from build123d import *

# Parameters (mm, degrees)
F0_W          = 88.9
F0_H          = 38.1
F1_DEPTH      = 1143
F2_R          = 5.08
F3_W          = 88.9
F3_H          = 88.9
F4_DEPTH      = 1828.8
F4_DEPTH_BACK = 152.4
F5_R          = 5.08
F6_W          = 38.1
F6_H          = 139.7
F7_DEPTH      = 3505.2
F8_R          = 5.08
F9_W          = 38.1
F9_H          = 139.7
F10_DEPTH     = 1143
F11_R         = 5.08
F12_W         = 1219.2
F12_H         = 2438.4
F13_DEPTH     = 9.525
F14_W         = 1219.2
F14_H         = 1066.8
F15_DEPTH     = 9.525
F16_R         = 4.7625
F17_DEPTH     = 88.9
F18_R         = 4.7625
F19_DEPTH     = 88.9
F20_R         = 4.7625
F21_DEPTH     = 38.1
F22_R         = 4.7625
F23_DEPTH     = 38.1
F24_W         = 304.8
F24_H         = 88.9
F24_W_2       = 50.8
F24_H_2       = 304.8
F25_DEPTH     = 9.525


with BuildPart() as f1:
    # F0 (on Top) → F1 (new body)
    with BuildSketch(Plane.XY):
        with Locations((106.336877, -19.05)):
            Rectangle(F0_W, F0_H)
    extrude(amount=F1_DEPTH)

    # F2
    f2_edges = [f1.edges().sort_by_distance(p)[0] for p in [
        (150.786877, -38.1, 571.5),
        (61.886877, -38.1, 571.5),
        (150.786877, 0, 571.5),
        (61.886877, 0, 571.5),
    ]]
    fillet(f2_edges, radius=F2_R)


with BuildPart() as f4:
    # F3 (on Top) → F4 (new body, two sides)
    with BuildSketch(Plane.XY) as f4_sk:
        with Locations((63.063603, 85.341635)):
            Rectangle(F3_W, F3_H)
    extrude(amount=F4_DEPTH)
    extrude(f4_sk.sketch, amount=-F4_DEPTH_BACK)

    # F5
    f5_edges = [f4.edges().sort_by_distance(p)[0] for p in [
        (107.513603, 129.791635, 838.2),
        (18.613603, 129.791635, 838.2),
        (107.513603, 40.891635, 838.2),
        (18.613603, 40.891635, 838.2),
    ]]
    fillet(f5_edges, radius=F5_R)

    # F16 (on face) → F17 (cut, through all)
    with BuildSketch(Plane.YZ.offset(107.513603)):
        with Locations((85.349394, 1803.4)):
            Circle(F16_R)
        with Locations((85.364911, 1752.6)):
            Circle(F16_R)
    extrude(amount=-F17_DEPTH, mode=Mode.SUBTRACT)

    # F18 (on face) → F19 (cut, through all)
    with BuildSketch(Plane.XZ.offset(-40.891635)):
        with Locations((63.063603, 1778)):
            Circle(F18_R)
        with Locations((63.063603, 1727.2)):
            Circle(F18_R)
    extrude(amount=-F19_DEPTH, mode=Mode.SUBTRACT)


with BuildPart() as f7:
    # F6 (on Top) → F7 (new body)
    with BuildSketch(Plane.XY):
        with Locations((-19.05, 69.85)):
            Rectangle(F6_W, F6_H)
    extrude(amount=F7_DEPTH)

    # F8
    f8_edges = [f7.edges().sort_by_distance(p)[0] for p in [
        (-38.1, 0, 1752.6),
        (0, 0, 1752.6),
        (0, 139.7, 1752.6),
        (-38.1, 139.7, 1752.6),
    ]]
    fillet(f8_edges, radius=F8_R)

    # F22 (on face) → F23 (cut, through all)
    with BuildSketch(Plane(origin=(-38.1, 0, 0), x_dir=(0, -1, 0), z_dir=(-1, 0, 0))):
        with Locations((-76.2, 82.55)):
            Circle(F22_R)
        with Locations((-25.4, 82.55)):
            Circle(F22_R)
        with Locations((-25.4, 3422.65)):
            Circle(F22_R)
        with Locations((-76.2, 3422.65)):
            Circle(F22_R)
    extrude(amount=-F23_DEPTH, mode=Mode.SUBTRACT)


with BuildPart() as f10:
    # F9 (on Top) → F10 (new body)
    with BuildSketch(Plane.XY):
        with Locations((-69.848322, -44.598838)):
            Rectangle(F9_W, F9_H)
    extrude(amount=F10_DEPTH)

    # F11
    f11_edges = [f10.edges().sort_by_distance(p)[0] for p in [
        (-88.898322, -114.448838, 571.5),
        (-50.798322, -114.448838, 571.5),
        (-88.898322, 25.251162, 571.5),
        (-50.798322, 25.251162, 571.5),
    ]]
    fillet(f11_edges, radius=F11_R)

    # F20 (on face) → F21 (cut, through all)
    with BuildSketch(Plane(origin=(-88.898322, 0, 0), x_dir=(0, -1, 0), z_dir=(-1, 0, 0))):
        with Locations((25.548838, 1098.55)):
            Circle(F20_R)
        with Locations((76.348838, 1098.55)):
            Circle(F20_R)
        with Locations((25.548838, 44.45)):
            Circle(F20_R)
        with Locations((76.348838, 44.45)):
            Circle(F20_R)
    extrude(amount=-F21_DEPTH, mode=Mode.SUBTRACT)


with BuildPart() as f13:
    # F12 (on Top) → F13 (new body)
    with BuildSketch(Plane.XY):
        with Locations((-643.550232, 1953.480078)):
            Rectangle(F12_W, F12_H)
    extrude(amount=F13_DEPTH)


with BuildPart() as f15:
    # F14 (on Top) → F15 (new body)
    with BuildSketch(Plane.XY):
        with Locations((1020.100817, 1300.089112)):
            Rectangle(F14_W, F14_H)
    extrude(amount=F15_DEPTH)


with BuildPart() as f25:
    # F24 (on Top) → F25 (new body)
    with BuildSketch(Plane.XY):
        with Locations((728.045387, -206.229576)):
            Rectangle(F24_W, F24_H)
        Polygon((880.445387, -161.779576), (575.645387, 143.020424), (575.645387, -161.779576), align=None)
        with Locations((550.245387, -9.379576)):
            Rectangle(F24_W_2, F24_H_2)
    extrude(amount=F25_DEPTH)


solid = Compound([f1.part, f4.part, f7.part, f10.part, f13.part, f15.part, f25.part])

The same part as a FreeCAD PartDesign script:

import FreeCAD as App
import Part
import Sketcher
Q = App.Units.Quantity


def edges_at(feature, points):
    """Names of the edges that pass closest to the given points."""
    edges = feature.Shape.Edges
    near = lambda p: min(range(len(edges)), key=lambda i: edges[i].distToShape(Part.Vertex(*p))[0])
    return sorted({f"Edge{near(p) + 1}" for p in points})


def add_polygon(sketch, points):
    """Adds a closed chain of lines whose ends are joined by coincident constraints."""
    first, n = sketch.GeometryCount, len(points)
    for a, b in zip(points, points[1:] + points[:1]):
        sketch.addGeometry(Part.LineSegment(App.Vector(*a, 0), App.Vector(*b, 0)), False)
    for i in range(n):
        sketch.addConstraint(Sketcher.Constraint("Coincident", first + i, 2, first + (i + 1) % n, 1))

doc = App.newDocument("Part")
body = doc.addObject("PartDesign::Body", "Body")

sketch1 = body.newObject("Sketcher::SketchObject", "Sketch")
sketch1.AttachmentSupport = (doc.getObject("XY_Plane"), [""])
sketch1.MapMode = "FlatFace"
add_polygon(sketch1, [(61.886877, 0), (61.886877, -38.1), (150.786877, -38.1), (150.786877, 0)])
sketch1.addConstraint(Sketcher.Constraint("Vertical", 0))
sketch1.addConstraint(Sketcher.Constraint("Horizontal", 1))
sketch1.addConstraint(Sketcher.Constraint("Vertical", 2))
sketch1.addConstraint(Sketcher.Constraint("Horizontal", 3))
sketch1.addConstraint(Sketcher.Constraint("PointOnObject", 2, 2, -1))
sketch1.addConstraint(Sketcher.Constraint("DistanceX", 1, 1, 1, 2, Q("3.5 in")))
sketch1.addConstraint(Sketcher.Constraint("DistanceY", 0, 2, 0, 1, Q("1.5 in")))
sketch1.addConstraint(Sketcher.Constraint("DistanceX", -1, 1, 0, 2, Q("61.886877 mm")))
pad1 = body.newObject("PartDesign::Pad", "Pad")
pad1.Profile = sketch1
pad1.Length = Q("45 in")
doc.recompute()

fillet = body.newObject("PartDesign::Fillet", "Fillet")
fillet.Base = (pad1, edges_at(pad1, [
    (150.787, -38.1, 571.5),
    (61.887, -38.1, 571.5),
    (150.787, 0, 571.5),
    (61.887, 0, 571.5),
]))
fillet.Radius = Q("0.2 in")
body2 = doc.addObject("PartDesign::Body", "Body001")

sketch2 = body2.newObject("Sketcher::SketchObject", "Sketch001")
sketch2.AttachmentSupport = (doc.getObject("XY_Plane001"), [""])
sketch2.MapMode = "FlatFace"
add_polygon(sketch2, [(18.613603, 129.791635), (18.613603, 40.891635), (107.513603, 40.891635), (107.513603, 129.791635)])
sketch2.addConstraint(Sketcher.Constraint("Vertical", 0))
sketch2.addConstraint(Sketcher.Constraint("Horizontal", 1))
sketch2.addConstraint(Sketcher.Constraint("Vertical", 2))
sketch2.addConstraint(Sketcher.Constraint("Horizontal", 3))
sketch2.addConstraint(Sketcher.Constraint("Equal", 3, 0))
sketch2.addConstraint(Sketcher.Constraint("DistanceX", 1, 1, 1, 2, Q("3.5 in")))
sketch2.addConstraint(Sketcher.Constraint("DistanceX", -1, 1, 0, 2, Q("18.613603 mm")))
sketch2.addConstraint(Sketcher.Constraint("DistanceY", -1, 1, 0, 2, Q("40.891635 mm")))
pad2 = body2.newObject("PartDesign::Pad", "Pad001")
pad2.Profile = sketch2
pad2.Type = "TwoLengths"
pad2.Length = Q("72 in")
pad2.Length2 = Q("6 in")
doc.recompute()

fillet2 = body2.newObject("PartDesign::Fillet", "Fillet001")
fillet2.Base = (pad2, edges_at(pad2, [
    (107.514, 129.792, 838.2),
    (18.614, 129.792, 838.2),
    (107.514, 40.892, 838.2),
    (18.614, 40.892, 838.2),
]))
fillet2.Radius = Q("0.2 in")

sketch3 = body2.newObject("Sketcher::SketchObject", "Sketch002")
sketch3.AttachmentSupport = (doc.getObject("YZ_Plane001"), [""])
sketch3.MapMode = "FlatFace"
sketch3.AttachmentOffset = App.Placement(App.Vector(0, 0, 107.513603), App.Rotation())
sketch3.addGeometry(Part.Circle(App.Vector(85.349394, 1803.4, 0), App.Vector(0, 0, 1), 4.7625), False)
sketch3.addGeometry(Part.Circle(App.Vector(85.364911, 1752.6, 0), App.Vector(0, 0, 1), 4.7625), False)
sketch3.addConstraint(Sketcher.Constraint("Equal", 0, 1))
sketch3.addConstraint(Sketcher.Constraint("Diameter", 0, Q("0.375 in")))
sketch3.addConstraint(Sketcher.Constraint("DistanceY", -1, 1, 0, 3, Q("71 in")))
sketch3.addConstraint(Sketcher.Constraint("DistanceY", -1, 1, 1, 3, Q("69 in")))
sketch3.addConstraint(Sketcher.Constraint("DistanceX", -1, 1, 1, 3, Q("85.364911 mm")))
sketch3.addConstraint(Sketcher.Constraint("DistanceX", -1, 1, 0, 3, Q("85.349394 mm")))
pocket1 = body2.newObject("PartDesign::Pocket", "Pocket")
pocket1.Profile = sketch3
pocket1.Type = "ThroughAll"

sketch4 = body2.newObject("Sketcher::SketchObject", "Sketch003")
sketch4.AttachmentSupport = (doc.getObject("XZ_Plane001"), [""])
sketch4.MapMode = "FlatFace"
sketch4.AttachmentOffset = App.Placement(App.Vector(0, 0, -40.891635), App.Rotation())
sketch4.addGeometry(Part.Circle(App.Vector(63.063603, 1778, 0), App.Vector(0, 0, 1), 4.7625), False)
sketch4.addGeometry(Part.Circle(App.Vector(63.063603, 1727.2, 0), App.Vector(0, 0, 1), 4.7625), False)
sketch4.addConstraint(Sketcher.Constraint("Equal", 0, 1))
sketch4.addConstraint(Sketcher.Constraint("Vertical", 0, 3, 1, 3))
sketch4.addConstraint(Sketcher.Constraint("Diameter", 0, Q("0.375 in")))
sketch4.addConstraint(Sketcher.Constraint("DistanceY", -1, 1, 0, 3, Q("70 in")))
sketch4.addConstraint(Sketcher.Constraint("DistanceY", -1, 1, 1, 3, Q("68 in")))
sketch4.addConstraint(Sketcher.Constraint("DistanceX", -1, 1, 0, 3, Q("63.063603 mm")))
pocket2 = body2.newObject("PartDesign::Pocket", "Pocket001")
pocket2.Profile = sketch4
pocket2.Type = "ThroughAll"
body3 = doc.addObject("PartDesign::Body", "Body002")

sketch5 = body3.newObject("Sketcher::SketchObject", "Sketch004")
sketch5.AttachmentSupport = (doc.getObject("XY_Plane002"), [""])
sketch5.MapMode = "FlatFace"
add_polygon(sketch5, [(-38.1, 139.7), (-38.1, 0), (0, 0), (0, 139.7)])
sketch5.addConstraint(Sketcher.Constraint("Vertical", 0))
sketch5.addConstraint(Sketcher.Constraint("Horizontal", 1))
sketch5.addConstraint(Sketcher.Constraint("Vertical", 2))
sketch5.addConstraint(Sketcher.Constraint("Horizontal", 3))
sketch5.addConstraint(Sketcher.Constraint("Coincident", 1, 2, -1, 1))
sketch5.addConstraint(Sketcher.Constraint("DistanceX", 1, 1, 1, 2, Q("1.5 in")))
sketch5.addConstraint(Sketcher.Constraint("DistanceY", 0, 2, 0, 1, Q("5.5 in")))
pad3 = body3.newObject("PartDesign::Pad", "Pad002")
pad3.Profile = sketch5
pad3.Length = Q("138 in")
doc.recompute()

fillet3 = body3.newObject("PartDesign::Fillet", "Fillet002")
fillet3.Base = (pad3, edges_at(pad3, [
    (-38.1, 0, 1752.6),
    (0, 0, 1752.6),
    (0, 139.7, 1752.6),
    (-38.1, 139.7, 1752.6),
]))
fillet3.Radius = Q("0.2 in")

sketch6 = body3.newObject("Sketcher::SketchObject", "Sketch005")
sketch6.AttachmentSupport = (doc.getObject("YZ_Plane002"), [""])
sketch6.MapMode = "FlatFace"
sketch6.AttachmentOffset = App.Placement(App.Vector(0, 0, -1.5 * 25.4), App.Rotation())
sketch6.addGeometry(Part.Circle(App.Vector(76.2, 82.55, 0), App.Vector(0, 0, 1), 4.7625), False)
sketch6.addGeometry(Part.Circle(App.Vector(25.4, 82.55, 0), App.Vector(0, 0, 1), 4.7625), False)
sketch6.addGeometry(Part.Circle(App.Vector(25.4, 3422.65, 0), App.Vector(0, 0, 1), 4.7625), False)
sketch6.addGeometry(Part.Circle(App.Vector(76.2, 3422.65, 0), App.Vector(0, 0, 1), 4.7625), False)
sketch6.addConstraint(Sketcher.Constraint("Equal", 0, 1))
sketch6.addConstraint(Sketcher.Constraint("Equal", 1, 2))
sketch6.addConstraint(Sketcher.Constraint("Equal", 2, 3))
sketch6.addConstraint(Sketcher.Constraint("Horizontal", 0, 3, 1, 3))
sketch6.addConstraint(Sketcher.Constraint("Horizontal", 2, 3, 3, 3))
sketch6.addConstraint(Sketcher.Constraint("Vertical", 1, 3, 2, 3))
sketch6.addConstraint(Sketcher.Constraint("Vertical", 0, 3, 3, 3))
sketch6.addConstraint(Sketcher.Constraint("Diameter", 0, Q("0.375 in")))
sketch6.addConstraint(Sketcher.Constraint("DistanceX", -1, 1, 0, 3, Q("3 in")))
sketch6.addConstraint(Sketcher.Constraint("DistanceX", -1, 1, 1, 3, Q("1 in")))
sketch6.addConstraint(Sketcher.Constraint("DistanceY", 1, 3, 2, 3, Q("131.5 in")))
sketch6.addConstraint(Sketcher.Constraint("DistanceY", -1, 1, 0, 3, Q("3.25 in")))
pocket3 = body3.newObject("PartDesign::Pocket", "Pocket002")
pocket3.Profile = sketch6
pocket3.Type = "ThroughAll"
pocket3.Reversed = True
body4 = doc.addObject("PartDesign::Body", "Body003")

sketch7 = body4.newObject("Sketcher::SketchObject", "Sketch006")
sketch7.AttachmentSupport = (doc.getObject("XY_Plane003"), [""])
sketch7.MapMode = "FlatFace"
add_polygon(sketch7, [(-88.898322, 25.251162), (-88.898322, -114.448838), (-50.798322, -114.448838), (-50.798322, 25.251162)])
sketch7.addConstraint(Sketcher.Constraint("Vertical", 0))
sketch7.addConstraint(Sketcher.Constraint("Horizontal", 1))
sketch7.addConstraint(Sketcher.Constraint("Vertical", 2))
sketch7.addConstraint(Sketcher.Constraint("Horizontal", 3))
sketch7.addConstraint(Sketcher.Constraint("DistanceX", 1, 1, 1, 2, Q("1.5 in")))
sketch7.addConstraint(Sketcher.Constraint("DistanceY", 0, 2, 0, 1, Q("5.5 in")))
sketch7.addConstraint(Sketcher.Constraint("DistanceX", 0, 2, -1, 1, Q("88.898322 mm")))
sketch7.addConstraint(Sketcher.Constraint("DistanceY", 0, 2, -1, 1, Q("114.448838 mm")))
pad4 = body4.newObject("PartDesign::Pad", "Pad003")
pad4.Profile = sketch7
pad4.Length = Q("45 in")
doc.recompute()

fillet4 = body4.newObject("PartDesign::Fillet", "Fillet003")
fillet4.Base = (pad4, edges_at(pad4, [
    (-88.898, -114.449, 571.5),
    (-50.798, -114.449, 571.5),
    (-88.898, 25.251, 571.5),
    (-50.798, 25.251, 571.5),
]))
fillet4.Radius = Q("0.2 in")

sketch8 = body4.newObject("Sketcher::SketchObject", "Sketch007")
sketch8.AttachmentSupport = (doc.getObject("YZ_Plane003"), [""])
sketch8.MapMode = "FlatFace"
sketch8.AttachmentOffset = App.Placement(App.Vector(0, 0, -88.898322), App.Rotation())
sketch8.addGeometry(Part.Circle(App.Vector(-25.548838, 1098.55, 0), App.Vector(0, 0, 1), 4.7625), False)
sketch8.addGeometry(Part.Circle(App.Vector(-76.348838, 1098.55, 0), App.Vector(0, 0, 1), 4.7625), False)
sketch8.addGeometry(Part.Circle(App.Vector(-25.548838, 44.45, 0), App.Vector(0, 0, 1), 4.7625), False)
sketch8.addGeometry(Part.Circle(App.Vector(-76.348838, 44.45, 0), App.Vector(0, 0, 1), 4.7625), False)
sketch8.addConstraint(Sketcher.Constraint("Equal", 0, 1))
sketch8.addConstraint(Sketcher.Constraint("Equal", 1, 2))
sketch8.addConstraint(Sketcher.Constraint("Equal", 2, 3))
sketch8.addConstraint(Sketcher.Constraint("Horizontal", 0, 3, 1, 3))
sketch8.addConstraint(Sketcher.Constraint("Horizontal", 2, 3, 3, 3))
sketch8.addConstraint(Sketcher.Constraint("Vertical", 0, 3, 2, 3))
sketch8.addConstraint(Sketcher.Constraint("Vertical", 1, 3, 3, 3))
sketch8.addConstraint(Sketcher.Constraint("Diameter", 0, Q("0.375 in")))
sketch8.addConstraint(Sketcher.Constraint("DistanceX", 1, 3, 0, 3, Q("2 in")))
sketch8.addConstraint(Sketcher.Constraint("DistanceY", 2, 3, 0, 3, Q("41.5 in")))
sketch8.addConstraint(Sketcher.Constraint("DistanceY", -1, 1, 0, 3, Q("43.25 in")))
sketch8.addConstraint(Sketcher.Constraint("DistanceX", 0, 3, -1, 1, Q("25.548838 mm")))
pocket4 = body4.newObject("PartDesign::Pocket", "Pocket003")
pocket4.Profile = sketch8
pocket4.Type = "ThroughAll"
pocket4.Reversed = True
body5 = doc.addObject("PartDesign::Body", "Body004")

sketch9 = body5.newObject("Sketcher::SketchObject", "Sketch008")
sketch9.AttachmentSupport = (doc.getObject("XY_Plane004"), [""])
sketch9.MapMode = "FlatFace"
add_polygon(sketch9, [(-1253.150232, 3172.680078), (-1253.150232, 734.280078), (-33.950232, 734.280078), (-33.950232, 3172.680078)])
sketch9.addConstraint(Sketcher.Constraint("Vertical", 0))
sketch9.addConstraint(Sketcher.Constraint("Horizontal", 1))
sketch9.addConstraint(Sketcher.Constraint("Vertical", 2))
sketch9.addConstraint(Sketcher.Constraint("Horizontal", 3))
sketch9.addConstraint(Sketcher.Constraint("DistanceX", 1, 1, 1, 2, Q("48 in")))
sketch9.addConstraint(Sketcher.Constraint("DistanceY", 0, 2, 0, 1, Q("96 in")))
sketch9.addConstraint(Sketcher.Constraint("DistanceX", 0, 2, -1, 1, Q("1253.150232 mm")))
sketch9.addConstraint(Sketcher.Constraint("DistanceY", -1, 1, 0, 2, Q("734.280078 mm")))
pad5 = body5.newObject("PartDesign::Pad", "Pad004")
pad5.Profile = sketch9
pad5.Length = Q("0.375 in")
body6 = doc.addObject("PartDesign::Body", "Body005")

sketch10 = body6.newObject("Sketcher::SketchObject", "Sketch009")
sketch10.AttachmentSupport = (doc.getObject("XY_Plane005"), [""])
sketch10.MapMode = "FlatFace"
add_polygon(sketch10, [(410.500817, 1833.489112), (410.500817, 766.689112), (1629.700817, 766.689112), (1629.700817, 1833.489112)])
sketch10.addConstraint(Sketcher.Constraint("Vertical", 0))
sketch10.addConstraint(Sketcher.Constraint("Horizontal", 1))
sketch10.addConstraint(Sketcher.Constraint("Vertical", 2))
sketch10.addConstraint(Sketcher.Constraint("Horizontal", 3))
sketch10.addConstraint(Sketcher.Constraint("DistanceX", 1, 1, 1, 2, Q("48 in")))
sketch10.addConstraint(Sketcher.Constraint("DistanceY", 0, 2, 0, 1, Q("42 in")))
sketch10.addConstraint(Sketcher.Constraint("DistanceY", -1, 1, 0, 2, Q("766.689112 mm")))
sketch10.addConstraint(Sketcher.Constraint("DistanceX", -1, 1, 0, 2, Q("410.500817 mm")))
pad6 = body6.newObject("PartDesign::Pad", "Pad005")
pad6.Profile = sketch10
pad6.Length = Q("0.375 in")
body7 = doc.addObject("PartDesign::Body", "Body006")

sketch11 = body7.newObject("Sketcher::SketchObject", "Sketch010")
sketch11.AttachmentSupport = (doc.getObject("XY_Plane006"), [""])
sketch11.MapMode = "FlatFace"
add_polygon(sketch11, [(575.645387, -250.679576), (880.445387, -250.679576), (880.445387, -161.779576), (575.645387, 143.020424), (524.845387, 143.020424), (524.845387, -161.779576), (575.645387, -161.779576)])
sketch11.addConstraint(Sketcher.Constraint("Horizontal", 0))
sketch11.addConstraint(Sketcher.Constraint("Vertical", 1))
sketch11.addConstraint(Sketcher.Constraint("Horizontal", 3))
sketch11.addConstraint(Sketcher.Constraint("Vertical", 4))
sketch11.addConstraint(Sketcher.Constraint("Horizontal", 5))
sketch11.addConstraint(Sketcher.Constraint("Vertical", 6))
sketch11.addConstraint(Sketcher.Constraint("Horizontal", 1, 2, 4, 2))
sketch11.addConstraint(Sketcher.Constraint("Vertical", 2, 2, 5, 2))
sketch11.addConstraint(Sketcher.Constraint("Equal", 0, 4))
sketch11.addConstraint(Sketcher.Constraint("DistanceX", 0, 1, 0, 2, Q("12 in")))
sketch11.addConstraint(Sketcher.Constraint("DistanceX", 3, 2, 3, 1, Q("2 in")))
sketch11.addConstraint(Sketcher.Constraint("DistanceY", 1, 1, 1, 2, Q("3.5 in")))
sketch11.addConstraint(Sketcher.Constraint("DistanceX", -1, 1, 0, 2, Q("880.445387 mm")))
sketch11.addConstraint(Sketcher.Constraint("DistanceY", 0, 2, -1, 1, Q("250.679576 mm")))
pad7 = body7.newObject("PartDesign::Pad", "Pad006")
pad7.Profile = sketch11
pad7.Length = Q("0.375 in")

doc.recompute()
